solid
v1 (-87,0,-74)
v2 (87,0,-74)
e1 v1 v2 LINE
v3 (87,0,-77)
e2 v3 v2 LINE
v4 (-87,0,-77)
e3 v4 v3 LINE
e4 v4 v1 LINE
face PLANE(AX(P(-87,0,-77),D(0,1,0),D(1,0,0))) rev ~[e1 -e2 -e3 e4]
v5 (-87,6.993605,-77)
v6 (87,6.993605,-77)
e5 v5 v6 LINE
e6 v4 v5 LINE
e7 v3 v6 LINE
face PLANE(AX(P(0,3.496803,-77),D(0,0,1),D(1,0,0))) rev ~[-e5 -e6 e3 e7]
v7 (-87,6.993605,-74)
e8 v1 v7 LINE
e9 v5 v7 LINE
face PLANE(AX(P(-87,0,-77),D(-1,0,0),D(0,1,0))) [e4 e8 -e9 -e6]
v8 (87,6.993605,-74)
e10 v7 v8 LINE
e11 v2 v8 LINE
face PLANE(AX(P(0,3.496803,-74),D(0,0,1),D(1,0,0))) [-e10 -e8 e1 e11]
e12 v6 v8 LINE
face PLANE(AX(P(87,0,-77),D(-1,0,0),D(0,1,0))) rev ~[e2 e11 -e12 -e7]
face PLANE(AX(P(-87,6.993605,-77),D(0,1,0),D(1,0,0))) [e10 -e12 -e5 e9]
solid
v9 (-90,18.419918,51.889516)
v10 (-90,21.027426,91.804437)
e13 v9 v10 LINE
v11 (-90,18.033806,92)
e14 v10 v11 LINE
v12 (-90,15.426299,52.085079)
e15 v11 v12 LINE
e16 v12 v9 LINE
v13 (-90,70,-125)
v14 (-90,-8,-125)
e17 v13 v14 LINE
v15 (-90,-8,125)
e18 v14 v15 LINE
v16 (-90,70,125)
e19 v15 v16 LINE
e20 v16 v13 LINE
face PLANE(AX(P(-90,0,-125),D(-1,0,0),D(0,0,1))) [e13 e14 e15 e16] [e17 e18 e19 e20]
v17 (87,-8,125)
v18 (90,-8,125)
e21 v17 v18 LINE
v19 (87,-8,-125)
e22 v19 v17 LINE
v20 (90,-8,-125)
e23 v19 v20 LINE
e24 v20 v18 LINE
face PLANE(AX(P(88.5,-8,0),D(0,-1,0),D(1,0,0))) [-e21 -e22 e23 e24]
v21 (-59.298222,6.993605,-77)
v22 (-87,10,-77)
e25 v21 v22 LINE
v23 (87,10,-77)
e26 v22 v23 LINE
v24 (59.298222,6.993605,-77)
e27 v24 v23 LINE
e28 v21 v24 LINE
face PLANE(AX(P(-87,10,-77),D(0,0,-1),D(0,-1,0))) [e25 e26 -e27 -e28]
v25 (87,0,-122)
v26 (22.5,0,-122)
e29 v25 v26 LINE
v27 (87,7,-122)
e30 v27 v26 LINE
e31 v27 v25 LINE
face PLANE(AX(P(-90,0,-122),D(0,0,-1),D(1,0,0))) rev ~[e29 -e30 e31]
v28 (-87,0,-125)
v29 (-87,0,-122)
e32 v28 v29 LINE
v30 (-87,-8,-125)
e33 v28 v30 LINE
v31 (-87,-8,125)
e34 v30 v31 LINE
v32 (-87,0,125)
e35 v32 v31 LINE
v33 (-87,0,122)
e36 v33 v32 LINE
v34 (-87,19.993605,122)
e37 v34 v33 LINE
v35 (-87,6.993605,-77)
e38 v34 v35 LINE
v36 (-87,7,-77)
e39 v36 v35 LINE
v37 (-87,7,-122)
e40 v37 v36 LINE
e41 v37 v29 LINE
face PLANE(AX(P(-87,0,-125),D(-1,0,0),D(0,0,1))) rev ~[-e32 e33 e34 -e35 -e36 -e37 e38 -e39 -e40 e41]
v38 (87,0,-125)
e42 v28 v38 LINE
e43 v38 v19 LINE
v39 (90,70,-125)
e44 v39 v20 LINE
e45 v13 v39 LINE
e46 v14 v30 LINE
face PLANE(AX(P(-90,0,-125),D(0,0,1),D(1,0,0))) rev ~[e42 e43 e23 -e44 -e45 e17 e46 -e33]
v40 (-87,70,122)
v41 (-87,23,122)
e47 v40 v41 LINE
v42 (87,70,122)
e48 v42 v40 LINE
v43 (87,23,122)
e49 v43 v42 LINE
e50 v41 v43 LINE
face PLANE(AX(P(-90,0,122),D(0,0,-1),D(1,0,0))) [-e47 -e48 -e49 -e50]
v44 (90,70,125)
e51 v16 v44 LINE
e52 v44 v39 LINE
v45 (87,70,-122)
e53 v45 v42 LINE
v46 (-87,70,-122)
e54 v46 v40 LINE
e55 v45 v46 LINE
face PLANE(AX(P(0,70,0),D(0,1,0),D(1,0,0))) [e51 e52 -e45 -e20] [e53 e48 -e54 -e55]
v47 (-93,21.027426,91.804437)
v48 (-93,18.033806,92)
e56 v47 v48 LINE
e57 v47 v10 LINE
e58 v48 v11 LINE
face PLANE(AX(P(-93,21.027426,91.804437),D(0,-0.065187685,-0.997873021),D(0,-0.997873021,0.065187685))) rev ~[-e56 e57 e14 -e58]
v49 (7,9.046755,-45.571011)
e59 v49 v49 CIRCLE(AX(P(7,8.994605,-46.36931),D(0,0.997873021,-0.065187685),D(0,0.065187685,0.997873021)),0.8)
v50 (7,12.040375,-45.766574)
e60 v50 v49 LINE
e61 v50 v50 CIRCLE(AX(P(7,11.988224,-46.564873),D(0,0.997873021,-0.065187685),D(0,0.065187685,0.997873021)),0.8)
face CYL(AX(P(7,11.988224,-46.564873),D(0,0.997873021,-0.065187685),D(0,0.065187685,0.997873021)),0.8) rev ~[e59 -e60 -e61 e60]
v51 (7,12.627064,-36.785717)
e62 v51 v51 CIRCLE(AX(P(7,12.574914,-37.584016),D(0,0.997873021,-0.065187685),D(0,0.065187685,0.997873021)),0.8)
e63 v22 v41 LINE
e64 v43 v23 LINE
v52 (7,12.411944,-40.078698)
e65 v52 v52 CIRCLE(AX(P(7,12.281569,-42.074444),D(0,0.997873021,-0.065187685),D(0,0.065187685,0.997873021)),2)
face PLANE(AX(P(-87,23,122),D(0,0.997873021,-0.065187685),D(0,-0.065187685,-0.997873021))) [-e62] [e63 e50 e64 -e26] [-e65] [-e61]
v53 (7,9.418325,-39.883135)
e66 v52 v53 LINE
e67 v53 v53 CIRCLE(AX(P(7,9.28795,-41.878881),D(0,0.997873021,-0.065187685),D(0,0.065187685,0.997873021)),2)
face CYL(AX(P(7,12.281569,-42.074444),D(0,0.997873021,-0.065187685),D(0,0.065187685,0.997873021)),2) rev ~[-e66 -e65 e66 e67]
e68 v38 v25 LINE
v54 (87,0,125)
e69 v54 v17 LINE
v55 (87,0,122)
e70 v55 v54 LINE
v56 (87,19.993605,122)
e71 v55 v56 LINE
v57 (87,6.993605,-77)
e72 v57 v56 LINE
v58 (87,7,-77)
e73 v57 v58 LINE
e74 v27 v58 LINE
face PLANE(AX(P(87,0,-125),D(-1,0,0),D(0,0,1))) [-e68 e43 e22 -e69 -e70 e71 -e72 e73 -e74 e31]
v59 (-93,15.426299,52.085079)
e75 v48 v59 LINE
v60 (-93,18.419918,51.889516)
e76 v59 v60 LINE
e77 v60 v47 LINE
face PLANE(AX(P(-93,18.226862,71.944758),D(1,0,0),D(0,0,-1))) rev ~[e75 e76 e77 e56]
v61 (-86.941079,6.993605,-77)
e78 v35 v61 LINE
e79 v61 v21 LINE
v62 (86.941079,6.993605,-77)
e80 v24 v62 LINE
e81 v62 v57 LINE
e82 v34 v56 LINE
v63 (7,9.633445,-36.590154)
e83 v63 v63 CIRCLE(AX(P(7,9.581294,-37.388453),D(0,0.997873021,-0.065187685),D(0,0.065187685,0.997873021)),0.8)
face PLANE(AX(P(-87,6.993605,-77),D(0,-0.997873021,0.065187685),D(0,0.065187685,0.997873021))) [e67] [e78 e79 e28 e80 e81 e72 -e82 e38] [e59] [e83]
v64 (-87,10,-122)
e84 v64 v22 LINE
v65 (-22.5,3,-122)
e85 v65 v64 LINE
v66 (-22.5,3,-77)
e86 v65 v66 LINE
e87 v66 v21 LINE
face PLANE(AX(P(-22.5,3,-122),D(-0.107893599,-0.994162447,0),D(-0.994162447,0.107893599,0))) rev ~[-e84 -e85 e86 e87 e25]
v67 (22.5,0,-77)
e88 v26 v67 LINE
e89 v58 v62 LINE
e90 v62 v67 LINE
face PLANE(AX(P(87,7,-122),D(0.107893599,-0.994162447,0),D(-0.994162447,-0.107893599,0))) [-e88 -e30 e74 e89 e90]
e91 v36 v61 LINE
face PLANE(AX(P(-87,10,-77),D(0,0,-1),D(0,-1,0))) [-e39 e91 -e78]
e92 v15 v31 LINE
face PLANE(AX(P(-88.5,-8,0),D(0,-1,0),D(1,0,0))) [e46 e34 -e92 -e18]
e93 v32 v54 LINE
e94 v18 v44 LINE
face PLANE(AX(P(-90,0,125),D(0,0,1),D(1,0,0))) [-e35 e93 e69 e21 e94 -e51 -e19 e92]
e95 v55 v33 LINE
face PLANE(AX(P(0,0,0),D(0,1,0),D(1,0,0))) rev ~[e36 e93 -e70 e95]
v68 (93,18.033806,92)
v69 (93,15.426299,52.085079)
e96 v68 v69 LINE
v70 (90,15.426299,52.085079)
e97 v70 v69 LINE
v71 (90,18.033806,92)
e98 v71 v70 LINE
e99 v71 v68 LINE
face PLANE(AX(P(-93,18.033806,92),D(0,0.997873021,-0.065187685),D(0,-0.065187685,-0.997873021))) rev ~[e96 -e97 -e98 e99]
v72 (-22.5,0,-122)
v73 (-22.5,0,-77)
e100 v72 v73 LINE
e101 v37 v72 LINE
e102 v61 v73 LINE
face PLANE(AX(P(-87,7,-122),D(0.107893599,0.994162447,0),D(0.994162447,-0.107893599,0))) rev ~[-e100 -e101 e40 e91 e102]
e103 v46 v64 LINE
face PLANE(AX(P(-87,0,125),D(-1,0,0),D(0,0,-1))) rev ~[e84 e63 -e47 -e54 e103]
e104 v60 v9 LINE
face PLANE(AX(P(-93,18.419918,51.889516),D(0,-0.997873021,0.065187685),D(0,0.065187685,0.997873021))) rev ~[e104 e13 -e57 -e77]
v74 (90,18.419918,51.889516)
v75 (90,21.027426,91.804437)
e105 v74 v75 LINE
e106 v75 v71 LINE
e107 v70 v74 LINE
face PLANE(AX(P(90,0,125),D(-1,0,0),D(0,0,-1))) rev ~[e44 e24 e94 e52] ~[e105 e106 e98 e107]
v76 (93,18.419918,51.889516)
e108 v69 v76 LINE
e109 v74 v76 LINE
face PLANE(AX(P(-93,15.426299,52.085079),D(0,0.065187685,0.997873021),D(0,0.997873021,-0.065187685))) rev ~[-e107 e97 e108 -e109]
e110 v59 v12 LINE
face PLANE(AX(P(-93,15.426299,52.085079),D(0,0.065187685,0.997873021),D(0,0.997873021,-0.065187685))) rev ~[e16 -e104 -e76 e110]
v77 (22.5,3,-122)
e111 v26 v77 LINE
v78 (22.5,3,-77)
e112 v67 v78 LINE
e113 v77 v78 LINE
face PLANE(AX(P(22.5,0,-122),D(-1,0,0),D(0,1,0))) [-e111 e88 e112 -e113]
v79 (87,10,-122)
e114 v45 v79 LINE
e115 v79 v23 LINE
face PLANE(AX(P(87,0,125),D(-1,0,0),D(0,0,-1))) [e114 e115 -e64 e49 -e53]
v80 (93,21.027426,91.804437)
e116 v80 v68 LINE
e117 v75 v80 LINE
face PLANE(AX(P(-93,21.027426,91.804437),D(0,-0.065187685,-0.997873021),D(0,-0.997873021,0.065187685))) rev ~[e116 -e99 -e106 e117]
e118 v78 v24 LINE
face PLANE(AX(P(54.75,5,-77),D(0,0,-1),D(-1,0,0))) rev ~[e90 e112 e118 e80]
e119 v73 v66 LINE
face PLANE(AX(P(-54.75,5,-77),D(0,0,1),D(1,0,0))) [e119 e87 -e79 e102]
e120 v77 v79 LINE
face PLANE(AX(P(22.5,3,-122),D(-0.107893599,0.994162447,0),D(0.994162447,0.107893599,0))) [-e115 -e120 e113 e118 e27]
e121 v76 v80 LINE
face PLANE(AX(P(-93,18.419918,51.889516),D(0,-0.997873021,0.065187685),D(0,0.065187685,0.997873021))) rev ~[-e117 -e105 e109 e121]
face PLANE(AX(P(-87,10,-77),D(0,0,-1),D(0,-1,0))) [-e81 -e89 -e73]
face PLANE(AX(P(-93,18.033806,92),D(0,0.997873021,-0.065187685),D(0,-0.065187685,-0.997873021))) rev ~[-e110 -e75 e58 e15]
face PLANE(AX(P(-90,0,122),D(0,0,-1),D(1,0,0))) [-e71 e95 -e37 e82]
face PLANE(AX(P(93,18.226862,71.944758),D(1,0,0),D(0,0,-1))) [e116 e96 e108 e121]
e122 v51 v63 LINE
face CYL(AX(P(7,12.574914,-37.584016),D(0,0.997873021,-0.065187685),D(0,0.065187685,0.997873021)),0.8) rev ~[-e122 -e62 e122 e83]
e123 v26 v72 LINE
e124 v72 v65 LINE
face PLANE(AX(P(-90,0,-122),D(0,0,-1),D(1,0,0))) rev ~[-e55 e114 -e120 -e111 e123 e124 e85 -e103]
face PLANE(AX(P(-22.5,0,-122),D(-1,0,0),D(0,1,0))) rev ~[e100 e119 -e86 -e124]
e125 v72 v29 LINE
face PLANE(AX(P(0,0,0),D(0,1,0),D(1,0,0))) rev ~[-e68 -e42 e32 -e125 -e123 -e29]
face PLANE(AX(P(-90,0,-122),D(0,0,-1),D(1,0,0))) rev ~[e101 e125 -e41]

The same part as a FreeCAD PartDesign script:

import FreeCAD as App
import Part
import Sketcher

V = App.Vector


def faces_at(feature, points):
    """Names of the faces that lie closest to the given points."""
    faces = feature.Shape.Faces
    near = lambda p: min(range(len(faces)), key=lambda i: faces[i].distToShape(Part.Vertex(*p))[0])
    return sorted({f"Face{near(p) + 1}" for p in points})


def add_polygon(sketch, points):
    """Adds a closed chain of lines whose ends are joined by coincident constraints."""
    first, n = sketch.GeometryCount, len(points)
    for a, b in zip(points, points[1:] + points[:1]):
        sketch.addGeometry(Part.LineSegment(App.Vector(*a, 0), App.Vector(*b, 0)), False)
    for i in range(n):
        sketch.addConstraint(Sketcher.Constraint("Coincident", first + i, 2, first + (i + 1) % n, 1))

doc = App.newDocument("Part")
body = doc.addObject("PartDesign::Body", "Body")

# Sketch on XZ plane
sketch1 = body.newObject("Sketcher::SketchObject", "Sketch")
sketch1.AttachmentSupport = (doc.getObject("XZ_Plane"), [""])
sketch1.MapMode = "FlatFace"
add_polygon(sketch1, [(-90, -125), (-90, 125), (90, 125), (90, -125)])  # lines 0-3
sketch1.addConstraint([
    Sketcher.Constraint("Vertical", 0),
    Sketcher.Constraint("Horizontal", 1),
    Sketcher.Constraint("Vertical", 2),
    Sketcher.Constraint("Horizontal", 3),
    Sketcher.Constraint("Symmetric", 0, 2, 2, 2, -1, 1),
    Sketcher.Constraint("DistanceX", 1, 1, 1, 2, 180.0),
    Sketcher.Constraint("DistanceY", 0, 1, 0, 2, 250.0),
])
pad1 = body.newObject("PartDesign::Pad", "Pad")
pad1.Profile = sketch1
pad1.Length = 70
pad1.Reversed = True
doc.recompute()

thickness = body.newObject("PartDesign::Thickness", "Thickness")
thickness.Base = (pad1, faces_at(pad1, [(0, 70, 0), (0, 0, 0)]))
thickness.Value = 3
thickness.Reversed = True
thickness.Join = "Intersection"

# Sketch on YZ plane
sketch2 = body.newObject("Sketcher::SketchObject", "Sketch001")
sketch2.AttachmentSupport = (doc.getObject("YZ_Plane"), [""])
sketch2.MapMode = "FlatFace"
sketch2.AttachmentOffset = App.Placement(V(0, 0, -87), App.Rotation())
add_polygon(sketch2, [(10, -77), (23, 122), (20, 122), (7, -77)])  # lines 0-3
sketch2.addConstraint([
    Sketcher.Constraint("Horizontal", 1),
    Sketcher.Constraint("Horizontal", 3),
    Sketcher.Constraint("Parallel", 0, 2),
    Sketcher.Constraint("DistanceX", -1, 1, 0, 2, 23.0),
    Sketcher.Constraint("DistanceY", -1, 1, 0, 2, 122.0),
    Sketcher.Constraint("DistanceY", 2, 2, -1, 1, 77.0),
    Sketcher.Constraint("DistanceX", -1, 1, 3, 2, 10.0),
    Sketcher.Constraint("DistanceX", 1, 2, 1, 1, 3.006395),
])
pad2 = body.newObject("PartDesign::Pad", "Pad001")
pad2.Profile = sketch2
pad2.Type = "UpToFirst"

# Sketch on XY plane
sketch3 = body.newObject("Sketcher::SketchObject", "Sketch002")
sketch3.AttachmentSupport = (doc.getObject("XY_Plane"), [""])
sketch3.MapMode = "FlatFace"
sketch3.AttachmentOffset = App.Placement(V(0, 0, -122), App.Rotation())
add_polygon(sketch3, [(-87, 10), (-87, 7), (-22.5, 0), (-22.5, 3)])  # lines 0-3
add_polygon(sketch3, [(87, 10), (22.5, 3), (22.5, 0), (87, 7)])  # lines 4-7
sketch3.addConstraint([
    Sketcher.Constraint("Vertical", 0),
    Sketcher.Constraint("Vertical", 2),
    Sketcher.Constraint("Vertical", 5),
    Sketcher.Constraint("Vertical", 7),
    Sketcher.Constraint("Symmetric", 1, 2, 5, 2, -1, 1),
    Sketcher.Constraint("Symmetric", 0, 2, 6, 2, -2),
    Sketcher.Constraint("PointOnObject", 1, 2, -1),
    Sketcher.Constraint("Parallel", 1, 3),
    Sketcher.Constraint("Parallel", 4, 6),
    Sketcher.Constraint("Horizontal", 2, 2, 4, 2),
    Sketcher.Constraint("DistanceY", 0, 2, 0, 1, 3.0),
    Sketcher.Constraint("DistanceX", 0, 2, -1, 1, 87.0),
    Sketcher.Constraint("DistanceY", -1, 1, 0, 2, 7.0),
    Sketcher.Constraint("DistanceX", 2, 2, 4, 2, 45.0),
])
pad3 = body.newObject("PartDesign::Pad", "Pad002")
pad3.Profile = sketch3
pad3.Length = 45

# Sketch on YZ plane
sketch4 = body.newObject("Sketcher::SketchObject", "Sketch003")
sketch4.AttachmentSupport = (doc.getObject("YZ_Plane"), [""])
sketch4.MapMode = "FlatFace"
sketch4.AttachmentOffset = App.Placement(V(0, 0, -87), App.Rotation())
add_polygon(sketch4, [(18, 92), (15.4, 52.1), (18.4, 51.9), (21, 91.8)])  # lines 0-3
sketch4.addConstraint([
    Sketcher.Constraint("Perpendicular", 0, 1),
    Sketcher.Constraint("Perpendicular", 1, 2),
    Sketcher.Constraint("Perpendicular", 2, 3),
    Sketcher.Constraint("Distance", 0, 40.0),
    Sketcher.Constraint("Distance", 1, 3.0),
    Sketcher.Constraint("DistanceY", -1, 1, 3, 2, 92.0),
    Sketcher.Constraint("DistanceX", -1, 1, 0, 2, 15.426299),
    Sketcher.Constraint("DistanceY", -1, 1, 0, 2, 52.085079),
])
pad4 = body.newObject("PartDesign::Pad", "Pad003")
pad4.Profile = sketch4
pad4.Type = "TwoLengths"
pad4.Length = 180
pad4.Length2 = 6

# Sketch on XZ plane
sketch5 = body.newObject("Sketcher::SketchObject", "Sketch004")
sketch5.AttachmentSupport = (doc.getObject("XZ_Plane"), [""])
sketch5.MapMode = "FlatFace"
add_polygon(sketch5, [(-90, 125), (-90, -125), (-87, -125), (-87, 125)])  # lines 0-3
add_polygon(sketch5, [(87, 125), (87, -125), (90, -125), (90, 125)])  # lines 4-7
sketch5.addConstraint([
    Sketcher.Constraint("Vertical", 0),
    Sketcher.Constraint("Horizontal", 1),
    Sketcher.Constraint("Vertical", 2),
    Sketcher.Constraint("Horizontal", 3),
    Sketcher.Constraint("Vertical", 4),
    Sketcher.Constraint("Horizontal", 5),
    Sketcher.Constraint("Vertical", 6),
    Sketcher.Constraint("Horizontal", 7),
    Sketcher.Constraint("Symmetric", 2, 2, 4, 2, -1, 1),
    Sketcher.Constraint("Symmetric", 0, 2, 6, 2, -1, 1),
    Sketcher.Constraint("Horizontal", 1, 2, 4, 2),
    Sketcher.Constraint("DistanceX", 1, 1, 1, 2, 3.0),
    Sketcher.Constraint("DistanceY", 0, 2, 0, 1, 250.0),
    Sketcher.Constraint("DistanceX", 0, 2, -1, 1, 90.0),
])
pad5 = body.newObject("PartDesign::Pad", "Pad004")
pad5.Profile = sketch5
pad5.Length = 8

# Sketch on an angled plane
sketch6 = body.newObject("Sketcher::SketchObject", "Sketch005")
sketch6.Placement = App.Placement(V(0, 14.966281, -0.977697), App.Rotation(V(1, 0, 0), V(0, -0.065187685, -0.997873021), V(0, 0.997873021, -0.065187685), "ZXY"))
sketch6.addGeometry([
    Part.Circle(V(7, 41.2, 0), V(0, 0, 1), 2),
    Part.Circle(V(7, 45.7, 0), V(0, 0, 1), 0.8),
    Part.Circle(V(7, 36.7, 0), V(0, 0, 1), 0.8),
], False)
sketch6.addConstraint([
    Sketcher.Constraint("Equal", 1, 2),
    Sketcher.Constraint("Vertical", 0, 3, 1, 3),
    Sketcher.Constraint("Vertical", 1, 3, 2, 3),
    Sketcher.Constraint("Diameter", 0, 4.0),
    Sketcher.Constraint("Diameter", 1, 1.6),
    Sketcher.Constraint("DistanceX", -1, 1, 0, 3, 7.0),
    Sketcher.Constraint("DistanceY", 2, 3, 1, 3, 9.0),
    Sketcher.Constraint("DistanceY", 0, 3, 1, 3, 4.5),
    Sketcher.Constraint("DistanceY", -1, 1, 0, 3, 41.184346),
])
pocket1 = body.newObject("PartDesign::Pocket", "Pocket")
pocket1.Profile = sketch6
pocket1.Length = 3
body2 = doc.addObject("PartDesign::Body", "Body001")

# Sketch on XY plane
sketch7 = body2.newObject("Sketcher::SketchObject", "Sketch006")
sketch7.AttachmentSupport = (doc.getObject("XY_Plane001"), [""])
sketch7.MapMode = "FlatFace"
sketch7.AttachmentOffset = App.Placement(V(0, 0, -77), App.Rotation())
add_polygon(sketch7, [(-87, 7), (-87, 0), (87, 0), (87, 7)])  # lines 0-3
sketch7.addConstraint([
    Sketcher.Constraint("Vertical", 0),
    Sketcher.Constraint("Horizontal", 1),
    Sketcher.Constraint("Vertical", 2),
    Sketcher.Constraint("Horizontal", 3),
    Sketcher.Constraint("Symmetric", 0, 2, 1, 2, -1, 1),
    Sketcher.Constraint("DistanceX", 1, 1, 1, 2, 174.0),
    Sketcher.Constraint("DistanceY", 0, 2, 0, 1, 6.993605),
])
pad6 = body2.newObject("PartDesign::Pad", "Pad005")
pad6.Profile = sketch7
pad6.Length = 3

doc.recompute()
